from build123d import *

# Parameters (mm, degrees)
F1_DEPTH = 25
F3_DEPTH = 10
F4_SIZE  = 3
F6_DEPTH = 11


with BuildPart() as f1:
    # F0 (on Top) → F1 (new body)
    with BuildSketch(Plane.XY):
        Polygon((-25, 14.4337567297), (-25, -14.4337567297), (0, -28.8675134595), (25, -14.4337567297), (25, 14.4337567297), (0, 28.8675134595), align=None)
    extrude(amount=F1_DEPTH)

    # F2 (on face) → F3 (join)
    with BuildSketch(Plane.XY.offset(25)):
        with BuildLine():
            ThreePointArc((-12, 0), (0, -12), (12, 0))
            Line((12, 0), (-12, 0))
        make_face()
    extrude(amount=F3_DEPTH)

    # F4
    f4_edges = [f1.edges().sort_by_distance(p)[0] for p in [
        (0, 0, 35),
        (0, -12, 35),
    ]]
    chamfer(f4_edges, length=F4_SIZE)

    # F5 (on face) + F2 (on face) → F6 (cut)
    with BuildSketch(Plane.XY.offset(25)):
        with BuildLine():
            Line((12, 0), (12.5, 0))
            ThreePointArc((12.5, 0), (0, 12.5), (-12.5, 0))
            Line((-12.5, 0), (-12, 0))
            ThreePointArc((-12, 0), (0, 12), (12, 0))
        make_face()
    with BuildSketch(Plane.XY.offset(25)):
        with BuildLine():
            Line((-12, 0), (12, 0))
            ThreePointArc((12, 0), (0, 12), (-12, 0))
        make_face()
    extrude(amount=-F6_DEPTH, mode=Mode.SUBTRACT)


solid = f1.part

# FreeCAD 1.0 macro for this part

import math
import FreeCAD as App
import Part
import Sketcher
Q = App.Units.Quantity


def edges_at(feature, points):
    """Names of the edges that pass closest to the given points."""
    edges = feature.Shape.Edges
    near = lambda p: min(range(len(edges)), key=lambda i: edges[i].distToShape(Part.Vertex(*p))[0])
    return sorted({f"Edge{near(p) + 1}" for p in points})


def add_polygon(sketch, points):
    """Adds a closed chain of lines whose ends are joined by coincident constraints."""
    first, n = sketch.GeometryCount, len(points)
    for a, b in zip(points, points[1:] + points[:1]):
        sketch.addGeometry(Part.LineSegment(App.Vector(*a, 0), App.Vector(*b, 0)), False)
    for i in range(n):
        sketch.addConstraint(Sketcher.Constraint("Coincident", first + i, 2, first + (i + 1) % n, 1))

doc = App.newDocument("Part")
body = doc.addObject("PartDesign::Body", "Body")

# Sketch on XY plane
sketch1 = doc.addObject("Sketcher::SketchObject", "Sketch")
body.addObject(sketch1)
sketch1.AttachmentSupport = (doc.XY_Plane, [""])
sketch1.MapMode = "FlatFace"
add_polygon(sketch1, [(-25, 14), (-25, -14), (0, -29), (25, -14), (25, 14), (0, 29)])  # lines 0-5
sketch1.addConstraint([
    Sketcher.Constraint("Vertical", 0),
    Sketcher.Constraint("Vertical", 3),
    Sketcher.Constraint("Symmetric", 0, 2, 3, 2, -1, 1),
    Sketcher.Constraint("Symmetric", 1, 2, 4, 2, -1, 1),
    Sketcher.Constraint("PointOnObject", 1, 2, -2),
    Sketcher.Constraint("Parallel", 2, 5),
    Sketcher.Constraint("Horizontal", 0, 2, 2, 2),
    Sketcher.Constraint("Angle", 1, Q("-30 deg")),
    Sketcher.Constraint("DistanceX", 0, 2, -1, 1, 25.0),
    Sketcher.Constraint("DistanceY", 0, 2, 0, 1, 28.867513),
])
pad1 = doc.addObject("PartDesign::Pad", "Pad")
body.addObject(pad1)
pad1.Profile = sketch1
pad1.Length = 25

# Sketch on XY plane
sketch2 = doc.addObject("Sketcher::SketchObject", "Sketch001")
body.addObject(sketch2)
sketch2.AttachmentSupport = (doc.XY_Plane, [""])
sketch2.MapMode = "FlatFace"
sketch2.AttachmentOffset = App.Placement(App.Vector(0, 0, 25), App.Rotation())
sketch2.addGeometry([
    Part.ArcOfCircle(Part.Circle(App.Vector(0, 0, 0), App.Vector(0, 0, 1), 12), math.radians(180), math.radians(360)),
    Part.LineSegment(App.Vector(12, 0, 0), App.Vector(-12, 0, 0)),
], False)
sketch2.addConstraint([
    Sketcher.Constraint("Coincident", 0, 1, 1, 2),
    Sketcher.Constraint("Coincident", 1, 1, 0, 2),
    Sketcher.Constraint("Horizontal", 1),
    Sketcher.Constraint("Coincident", 0, 3, -1, 1),
    Sketcher.Constraint("PointOnObject", 0, 1, -1),
    Sketcher.Constraint("Radius", 0, 12.0),
])
pad2 = doc.addObject("PartDesign::Pad", "Pad001")
body.addObject(pad2)
pad2.Profile = sketch2
pad2.Length = 10
doc.recompute()

chamfer = doc.addObject("PartDesign::Chamfer", "Chamfer")
body.addObject(chamfer)
chamfer.Base = (pad2, edges_at(pad2, [(0, 0, 35), (0, -12, 35)]))
chamfer.Size = 3

# Sketch on XY plane
sketch3 = doc.addObject("Sketcher::SketchObject", "Sketch002")
body.addObject(sketch3)
sketch3.AttachmentSupport = (doc.XY_Plane, [""])
sketch3.MapMode = "FlatFace"
sketch3.AttachmentOffset = App.Placement(App.Vector(0, 0, 25), App.Rotation())
sketch3.addGeometry([
    Part.ArcOfCircle(Part.Circle(App.Vector(0, 0, 0), App.Vector(0, 0, 1), 12), math.radians(0), math.radians(180)),
    Part.LineSegment(App.Vector(-12, 0, 0), App.Vector(12, 0, 0)),
], False)
sketch3.addConstraint([
    Sketcher.Constraint("Coincident", 0, 1, 1, 2),
    Sketcher.Constraint("Coincident", 1, 1, 0, 2),
    Sketcher.Constraint("Horizontal", 1),
    Sketcher.Constraint("Coincident", 0, 3, -1, 1),
    Sketcher.Constraint("PointOnObject", 0, 1, -1),
    Sketcher.Constraint("Radius", 0, 12.5),
])
pocket1 = doc.addObject("PartDesign::Pocket", "Pocket")
body.addObject(pocket1)
pocket1.Profile = sketch3
pocket1.Length = 11

doc.recompute()
